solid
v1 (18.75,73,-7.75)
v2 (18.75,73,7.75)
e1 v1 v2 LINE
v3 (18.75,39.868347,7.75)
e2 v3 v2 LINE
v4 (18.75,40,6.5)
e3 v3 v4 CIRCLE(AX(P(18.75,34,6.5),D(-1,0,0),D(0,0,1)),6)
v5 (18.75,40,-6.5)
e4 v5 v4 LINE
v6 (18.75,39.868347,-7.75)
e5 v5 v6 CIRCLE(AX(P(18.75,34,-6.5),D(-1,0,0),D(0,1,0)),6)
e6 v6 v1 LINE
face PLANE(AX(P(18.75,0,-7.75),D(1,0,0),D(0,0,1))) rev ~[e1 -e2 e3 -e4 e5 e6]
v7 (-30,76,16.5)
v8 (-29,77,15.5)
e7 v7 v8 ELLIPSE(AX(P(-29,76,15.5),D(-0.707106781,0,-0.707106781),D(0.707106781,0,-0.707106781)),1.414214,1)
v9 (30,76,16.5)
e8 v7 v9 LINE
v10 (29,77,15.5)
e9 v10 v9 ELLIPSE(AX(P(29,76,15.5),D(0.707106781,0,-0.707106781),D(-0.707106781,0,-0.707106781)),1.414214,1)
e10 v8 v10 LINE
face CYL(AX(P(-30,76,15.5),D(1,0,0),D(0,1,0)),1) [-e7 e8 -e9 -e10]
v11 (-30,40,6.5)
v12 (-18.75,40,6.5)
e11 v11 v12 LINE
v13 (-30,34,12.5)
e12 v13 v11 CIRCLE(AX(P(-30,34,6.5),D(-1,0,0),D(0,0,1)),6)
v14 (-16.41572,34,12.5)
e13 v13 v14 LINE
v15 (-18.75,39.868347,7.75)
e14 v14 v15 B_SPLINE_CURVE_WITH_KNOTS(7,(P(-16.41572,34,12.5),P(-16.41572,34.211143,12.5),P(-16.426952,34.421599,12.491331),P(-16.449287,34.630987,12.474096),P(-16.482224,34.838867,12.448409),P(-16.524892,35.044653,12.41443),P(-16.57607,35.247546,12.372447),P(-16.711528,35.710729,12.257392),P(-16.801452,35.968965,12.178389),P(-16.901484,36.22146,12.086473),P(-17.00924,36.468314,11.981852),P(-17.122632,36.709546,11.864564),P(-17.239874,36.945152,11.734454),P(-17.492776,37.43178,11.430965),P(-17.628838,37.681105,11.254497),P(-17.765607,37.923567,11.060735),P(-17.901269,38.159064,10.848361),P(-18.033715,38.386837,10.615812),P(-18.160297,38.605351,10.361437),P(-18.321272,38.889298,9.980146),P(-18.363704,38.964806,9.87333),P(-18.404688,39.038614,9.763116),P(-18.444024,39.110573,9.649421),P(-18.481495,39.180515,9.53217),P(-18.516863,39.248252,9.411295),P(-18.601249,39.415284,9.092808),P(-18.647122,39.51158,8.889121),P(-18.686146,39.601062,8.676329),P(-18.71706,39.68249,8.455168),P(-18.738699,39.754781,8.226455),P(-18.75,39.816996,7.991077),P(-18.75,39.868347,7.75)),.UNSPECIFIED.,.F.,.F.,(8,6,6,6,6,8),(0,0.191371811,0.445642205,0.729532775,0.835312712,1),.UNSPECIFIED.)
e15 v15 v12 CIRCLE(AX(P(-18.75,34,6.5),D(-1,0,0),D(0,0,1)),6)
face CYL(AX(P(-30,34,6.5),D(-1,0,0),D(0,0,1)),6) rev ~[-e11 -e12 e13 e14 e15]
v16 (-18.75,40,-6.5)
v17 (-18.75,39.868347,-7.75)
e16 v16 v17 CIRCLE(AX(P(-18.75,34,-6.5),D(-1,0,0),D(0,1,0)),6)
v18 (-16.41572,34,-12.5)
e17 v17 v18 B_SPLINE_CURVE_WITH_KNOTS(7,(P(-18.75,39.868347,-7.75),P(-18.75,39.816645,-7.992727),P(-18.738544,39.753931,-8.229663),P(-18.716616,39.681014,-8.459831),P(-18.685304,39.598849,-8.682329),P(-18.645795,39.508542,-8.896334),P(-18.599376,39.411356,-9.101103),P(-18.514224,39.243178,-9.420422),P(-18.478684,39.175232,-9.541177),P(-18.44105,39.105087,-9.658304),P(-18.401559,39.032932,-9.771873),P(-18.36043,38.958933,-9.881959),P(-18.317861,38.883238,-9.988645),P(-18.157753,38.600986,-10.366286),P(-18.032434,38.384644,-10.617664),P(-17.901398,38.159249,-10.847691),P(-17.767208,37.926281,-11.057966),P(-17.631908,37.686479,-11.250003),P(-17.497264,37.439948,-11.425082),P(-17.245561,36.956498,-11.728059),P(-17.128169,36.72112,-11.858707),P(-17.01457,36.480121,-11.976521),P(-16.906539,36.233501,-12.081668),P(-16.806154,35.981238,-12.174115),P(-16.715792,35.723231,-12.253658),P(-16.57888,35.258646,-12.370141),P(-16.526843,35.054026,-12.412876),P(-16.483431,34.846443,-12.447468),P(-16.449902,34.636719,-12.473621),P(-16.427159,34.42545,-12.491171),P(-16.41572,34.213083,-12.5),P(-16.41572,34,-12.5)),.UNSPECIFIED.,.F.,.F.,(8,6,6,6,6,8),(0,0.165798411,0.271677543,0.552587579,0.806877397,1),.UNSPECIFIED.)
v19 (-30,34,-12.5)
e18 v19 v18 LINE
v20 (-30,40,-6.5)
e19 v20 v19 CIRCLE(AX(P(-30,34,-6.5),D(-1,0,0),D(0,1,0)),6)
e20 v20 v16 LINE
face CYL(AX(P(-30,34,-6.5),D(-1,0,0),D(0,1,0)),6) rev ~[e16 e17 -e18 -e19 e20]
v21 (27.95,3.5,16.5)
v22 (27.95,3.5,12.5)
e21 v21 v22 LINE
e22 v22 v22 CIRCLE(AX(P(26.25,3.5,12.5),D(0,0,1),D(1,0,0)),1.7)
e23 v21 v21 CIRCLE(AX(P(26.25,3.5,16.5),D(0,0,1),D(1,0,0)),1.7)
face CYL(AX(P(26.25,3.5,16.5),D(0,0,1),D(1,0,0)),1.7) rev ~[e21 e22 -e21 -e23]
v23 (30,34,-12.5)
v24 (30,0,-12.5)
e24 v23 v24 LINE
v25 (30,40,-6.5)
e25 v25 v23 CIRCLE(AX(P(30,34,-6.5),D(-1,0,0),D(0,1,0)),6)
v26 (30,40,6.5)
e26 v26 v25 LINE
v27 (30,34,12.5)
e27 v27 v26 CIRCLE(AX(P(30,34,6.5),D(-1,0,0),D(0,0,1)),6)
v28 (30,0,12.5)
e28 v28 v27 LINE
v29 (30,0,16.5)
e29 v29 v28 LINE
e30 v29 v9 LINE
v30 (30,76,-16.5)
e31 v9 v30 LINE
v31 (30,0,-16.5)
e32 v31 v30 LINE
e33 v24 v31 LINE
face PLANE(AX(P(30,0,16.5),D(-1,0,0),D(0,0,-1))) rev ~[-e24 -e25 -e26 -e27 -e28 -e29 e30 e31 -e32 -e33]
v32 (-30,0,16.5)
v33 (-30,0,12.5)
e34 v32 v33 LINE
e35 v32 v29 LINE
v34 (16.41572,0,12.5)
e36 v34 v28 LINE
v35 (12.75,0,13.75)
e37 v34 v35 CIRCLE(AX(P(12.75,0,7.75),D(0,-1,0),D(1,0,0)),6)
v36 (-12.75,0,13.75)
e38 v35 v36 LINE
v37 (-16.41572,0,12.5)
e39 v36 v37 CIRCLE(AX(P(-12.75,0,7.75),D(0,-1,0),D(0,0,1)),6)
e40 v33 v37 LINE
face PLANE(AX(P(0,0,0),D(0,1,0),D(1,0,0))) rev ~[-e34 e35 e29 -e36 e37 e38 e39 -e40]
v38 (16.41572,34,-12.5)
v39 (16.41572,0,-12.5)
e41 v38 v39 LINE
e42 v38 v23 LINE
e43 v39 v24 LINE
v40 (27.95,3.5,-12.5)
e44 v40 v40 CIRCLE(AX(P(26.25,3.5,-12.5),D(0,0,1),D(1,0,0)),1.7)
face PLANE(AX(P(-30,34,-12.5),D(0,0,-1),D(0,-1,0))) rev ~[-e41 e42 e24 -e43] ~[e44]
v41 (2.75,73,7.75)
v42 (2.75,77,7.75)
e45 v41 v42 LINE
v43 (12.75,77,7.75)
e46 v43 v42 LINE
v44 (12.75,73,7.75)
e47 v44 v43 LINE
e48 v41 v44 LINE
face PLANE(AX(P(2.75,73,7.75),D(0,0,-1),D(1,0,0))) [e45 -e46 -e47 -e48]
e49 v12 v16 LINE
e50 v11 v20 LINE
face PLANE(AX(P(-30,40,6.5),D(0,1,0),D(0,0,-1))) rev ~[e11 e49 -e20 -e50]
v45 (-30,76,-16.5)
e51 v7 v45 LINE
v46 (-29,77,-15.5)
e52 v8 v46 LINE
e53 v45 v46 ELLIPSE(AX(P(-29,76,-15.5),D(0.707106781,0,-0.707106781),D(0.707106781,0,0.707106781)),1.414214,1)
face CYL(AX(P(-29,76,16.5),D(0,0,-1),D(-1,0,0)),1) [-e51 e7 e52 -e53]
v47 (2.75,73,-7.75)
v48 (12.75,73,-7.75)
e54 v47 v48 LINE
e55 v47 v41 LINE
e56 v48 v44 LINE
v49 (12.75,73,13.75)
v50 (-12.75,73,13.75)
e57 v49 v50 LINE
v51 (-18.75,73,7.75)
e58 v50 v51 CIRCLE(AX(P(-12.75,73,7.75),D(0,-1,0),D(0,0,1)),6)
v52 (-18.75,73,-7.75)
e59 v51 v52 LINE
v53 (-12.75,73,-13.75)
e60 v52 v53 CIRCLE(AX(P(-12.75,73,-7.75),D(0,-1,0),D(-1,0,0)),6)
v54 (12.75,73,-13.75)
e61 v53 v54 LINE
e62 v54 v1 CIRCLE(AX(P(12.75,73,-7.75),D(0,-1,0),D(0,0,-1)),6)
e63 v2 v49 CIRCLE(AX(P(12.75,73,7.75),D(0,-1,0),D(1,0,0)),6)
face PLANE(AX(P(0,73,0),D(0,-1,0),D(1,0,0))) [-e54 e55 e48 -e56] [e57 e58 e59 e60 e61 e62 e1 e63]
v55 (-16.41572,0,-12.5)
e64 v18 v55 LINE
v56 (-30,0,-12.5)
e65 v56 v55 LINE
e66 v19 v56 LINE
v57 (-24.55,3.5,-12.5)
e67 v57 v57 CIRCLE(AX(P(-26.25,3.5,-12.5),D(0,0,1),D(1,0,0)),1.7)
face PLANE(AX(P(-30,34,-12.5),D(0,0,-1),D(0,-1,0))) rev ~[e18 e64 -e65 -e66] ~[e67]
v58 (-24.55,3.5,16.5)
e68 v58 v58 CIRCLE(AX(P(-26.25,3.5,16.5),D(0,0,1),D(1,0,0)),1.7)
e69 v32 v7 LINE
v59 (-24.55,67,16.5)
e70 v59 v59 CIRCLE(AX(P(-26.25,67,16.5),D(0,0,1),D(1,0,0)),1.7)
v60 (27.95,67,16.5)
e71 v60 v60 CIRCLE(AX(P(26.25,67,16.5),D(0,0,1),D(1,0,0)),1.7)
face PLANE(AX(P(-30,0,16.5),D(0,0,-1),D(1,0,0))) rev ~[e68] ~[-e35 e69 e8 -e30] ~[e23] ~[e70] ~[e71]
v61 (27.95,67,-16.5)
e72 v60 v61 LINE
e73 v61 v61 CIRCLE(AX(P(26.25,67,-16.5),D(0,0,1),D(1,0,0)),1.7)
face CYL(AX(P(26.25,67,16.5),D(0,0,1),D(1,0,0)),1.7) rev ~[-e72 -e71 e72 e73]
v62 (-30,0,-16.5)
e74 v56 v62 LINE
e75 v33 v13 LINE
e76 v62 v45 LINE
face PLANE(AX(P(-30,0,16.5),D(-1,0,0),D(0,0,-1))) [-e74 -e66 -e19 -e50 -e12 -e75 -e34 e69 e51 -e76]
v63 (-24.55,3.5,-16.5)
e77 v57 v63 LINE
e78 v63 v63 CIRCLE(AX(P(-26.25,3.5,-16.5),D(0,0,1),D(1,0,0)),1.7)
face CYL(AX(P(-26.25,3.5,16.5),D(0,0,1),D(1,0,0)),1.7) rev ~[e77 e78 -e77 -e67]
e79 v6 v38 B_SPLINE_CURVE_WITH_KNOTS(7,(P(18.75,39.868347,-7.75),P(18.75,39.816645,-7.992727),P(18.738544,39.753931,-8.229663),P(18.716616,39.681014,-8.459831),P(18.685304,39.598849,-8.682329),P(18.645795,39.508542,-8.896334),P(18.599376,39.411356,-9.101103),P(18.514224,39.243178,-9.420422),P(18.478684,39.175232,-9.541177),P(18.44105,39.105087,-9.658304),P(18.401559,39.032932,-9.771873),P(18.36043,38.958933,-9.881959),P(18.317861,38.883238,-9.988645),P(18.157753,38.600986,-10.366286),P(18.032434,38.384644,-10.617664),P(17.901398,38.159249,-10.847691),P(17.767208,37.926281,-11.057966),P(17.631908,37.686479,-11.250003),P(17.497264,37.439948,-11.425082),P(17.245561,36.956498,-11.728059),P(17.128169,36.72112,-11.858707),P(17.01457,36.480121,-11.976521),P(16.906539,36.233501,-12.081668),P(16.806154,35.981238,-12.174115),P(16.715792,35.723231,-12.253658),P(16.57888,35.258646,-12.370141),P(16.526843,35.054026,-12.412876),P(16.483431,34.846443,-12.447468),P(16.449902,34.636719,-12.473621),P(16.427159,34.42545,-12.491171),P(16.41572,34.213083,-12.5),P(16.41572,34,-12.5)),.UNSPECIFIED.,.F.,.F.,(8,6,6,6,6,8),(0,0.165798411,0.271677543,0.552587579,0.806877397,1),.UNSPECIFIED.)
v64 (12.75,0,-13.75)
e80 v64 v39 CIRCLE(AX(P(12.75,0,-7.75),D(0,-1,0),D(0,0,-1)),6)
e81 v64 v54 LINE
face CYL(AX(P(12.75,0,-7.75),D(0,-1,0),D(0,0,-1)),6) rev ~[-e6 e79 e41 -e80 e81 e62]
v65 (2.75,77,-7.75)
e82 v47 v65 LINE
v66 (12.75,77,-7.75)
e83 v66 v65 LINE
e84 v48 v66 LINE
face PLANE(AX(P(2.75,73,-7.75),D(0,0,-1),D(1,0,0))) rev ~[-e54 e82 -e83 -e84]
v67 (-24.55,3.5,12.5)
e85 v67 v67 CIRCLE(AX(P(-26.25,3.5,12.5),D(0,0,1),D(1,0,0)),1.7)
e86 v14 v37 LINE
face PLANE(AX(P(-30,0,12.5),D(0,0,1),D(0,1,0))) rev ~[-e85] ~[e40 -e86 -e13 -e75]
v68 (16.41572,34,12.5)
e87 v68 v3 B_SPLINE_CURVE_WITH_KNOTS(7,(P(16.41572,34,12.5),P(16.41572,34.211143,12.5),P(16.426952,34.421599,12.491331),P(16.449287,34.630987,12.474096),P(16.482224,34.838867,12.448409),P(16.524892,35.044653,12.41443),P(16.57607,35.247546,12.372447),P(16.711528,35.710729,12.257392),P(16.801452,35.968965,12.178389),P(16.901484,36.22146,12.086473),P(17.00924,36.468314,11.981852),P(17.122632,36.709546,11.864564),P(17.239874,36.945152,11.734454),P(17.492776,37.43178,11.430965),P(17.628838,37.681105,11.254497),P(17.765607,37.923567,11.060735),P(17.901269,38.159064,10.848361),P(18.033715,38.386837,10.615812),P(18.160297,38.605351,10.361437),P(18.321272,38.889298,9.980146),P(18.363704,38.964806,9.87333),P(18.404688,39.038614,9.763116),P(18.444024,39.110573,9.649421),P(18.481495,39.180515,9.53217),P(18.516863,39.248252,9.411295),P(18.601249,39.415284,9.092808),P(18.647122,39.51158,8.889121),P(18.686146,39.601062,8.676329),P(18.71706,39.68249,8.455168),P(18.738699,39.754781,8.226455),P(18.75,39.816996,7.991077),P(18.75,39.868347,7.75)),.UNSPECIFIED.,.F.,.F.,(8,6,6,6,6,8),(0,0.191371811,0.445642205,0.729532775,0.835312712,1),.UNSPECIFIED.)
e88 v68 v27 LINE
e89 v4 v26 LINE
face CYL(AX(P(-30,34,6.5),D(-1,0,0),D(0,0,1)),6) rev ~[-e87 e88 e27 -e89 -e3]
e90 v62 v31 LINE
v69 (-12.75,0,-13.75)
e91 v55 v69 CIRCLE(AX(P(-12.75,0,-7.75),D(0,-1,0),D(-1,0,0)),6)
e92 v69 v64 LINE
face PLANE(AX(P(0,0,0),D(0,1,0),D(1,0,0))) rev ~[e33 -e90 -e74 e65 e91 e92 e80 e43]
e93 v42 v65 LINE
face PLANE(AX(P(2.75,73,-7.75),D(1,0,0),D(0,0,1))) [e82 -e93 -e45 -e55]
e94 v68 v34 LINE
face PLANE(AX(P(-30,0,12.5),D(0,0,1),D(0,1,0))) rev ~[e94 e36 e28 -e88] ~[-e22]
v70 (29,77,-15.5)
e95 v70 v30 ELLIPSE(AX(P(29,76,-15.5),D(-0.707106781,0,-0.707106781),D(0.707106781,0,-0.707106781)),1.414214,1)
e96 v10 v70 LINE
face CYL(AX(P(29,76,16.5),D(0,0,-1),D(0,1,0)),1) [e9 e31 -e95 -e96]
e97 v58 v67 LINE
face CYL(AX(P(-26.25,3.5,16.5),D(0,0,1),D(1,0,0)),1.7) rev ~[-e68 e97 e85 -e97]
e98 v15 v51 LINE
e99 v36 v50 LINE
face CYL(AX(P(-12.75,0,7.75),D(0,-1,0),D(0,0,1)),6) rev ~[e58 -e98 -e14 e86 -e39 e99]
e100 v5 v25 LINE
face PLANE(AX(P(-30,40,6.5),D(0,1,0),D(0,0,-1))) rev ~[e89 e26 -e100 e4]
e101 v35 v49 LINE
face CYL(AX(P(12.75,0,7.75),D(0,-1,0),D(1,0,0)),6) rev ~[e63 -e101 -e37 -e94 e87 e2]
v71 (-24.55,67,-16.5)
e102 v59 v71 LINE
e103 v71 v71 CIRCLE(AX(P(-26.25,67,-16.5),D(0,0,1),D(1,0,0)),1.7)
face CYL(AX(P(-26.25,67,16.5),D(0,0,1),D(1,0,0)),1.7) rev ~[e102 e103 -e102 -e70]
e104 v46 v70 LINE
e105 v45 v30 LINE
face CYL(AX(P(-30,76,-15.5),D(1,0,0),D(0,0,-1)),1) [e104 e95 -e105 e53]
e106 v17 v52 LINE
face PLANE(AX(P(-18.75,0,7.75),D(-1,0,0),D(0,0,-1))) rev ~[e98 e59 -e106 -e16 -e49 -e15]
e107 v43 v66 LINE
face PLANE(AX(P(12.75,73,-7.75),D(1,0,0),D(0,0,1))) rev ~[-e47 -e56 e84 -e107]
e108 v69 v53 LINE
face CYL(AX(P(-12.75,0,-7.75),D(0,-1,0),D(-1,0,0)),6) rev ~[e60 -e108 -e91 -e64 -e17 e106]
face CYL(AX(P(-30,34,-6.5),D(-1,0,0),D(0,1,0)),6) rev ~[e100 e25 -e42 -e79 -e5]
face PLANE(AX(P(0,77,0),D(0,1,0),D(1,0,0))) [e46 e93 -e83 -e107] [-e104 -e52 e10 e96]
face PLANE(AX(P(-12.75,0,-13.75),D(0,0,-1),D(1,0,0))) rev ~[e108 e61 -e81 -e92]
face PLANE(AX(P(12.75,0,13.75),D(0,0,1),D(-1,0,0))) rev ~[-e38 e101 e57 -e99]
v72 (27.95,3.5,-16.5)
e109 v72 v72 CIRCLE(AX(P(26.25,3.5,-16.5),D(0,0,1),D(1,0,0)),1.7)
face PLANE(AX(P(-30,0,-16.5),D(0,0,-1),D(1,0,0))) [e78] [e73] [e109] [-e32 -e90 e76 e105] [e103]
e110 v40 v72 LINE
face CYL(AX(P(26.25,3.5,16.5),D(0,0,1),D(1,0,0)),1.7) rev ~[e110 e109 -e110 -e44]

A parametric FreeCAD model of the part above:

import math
import FreeCAD as App
import Part
import Sketcher
Q = App.Units.Quantity


def edges_at(feature, points):
    """Names of the edges that pass closest to the given points."""
    edges = feature.Shape.Edges
    near = lambda p: min(range(len(edges)), key=lambda i: edges[i].distToShape(Part.Vertex(*p))[0])
    return sorted({f"Edge{near(p) + 1}" for p in points})

doc = App.newDocument("Part")
params = doc.addObject("Spreadsheet::Sheet", "Params")
for row, (alias, value) in enumerate([
    ("sketch1_width", "60 mm"),
    ("sketch1_height", "33 mm"),
    ("pad1_length", "77 mm"),
    ("sketch2_radius", "6 mm"),
    ("sketch2_width", "25.5 mm"),
    ("sketch2_height", "15.5 mm"),
    ("pocket1_length", "73 mm"),
    ("sketch3_diameter", "3.4 mm"),
    ("sketch4_radius", "6 mm"),
    ("sketch4_width", "34 mm"),
    ("sketch4_height", "13 mm"),
    ("sketch5_width", "10 mm"),
    ("sketch5_height", "15.5 mm"),
    ("fillet_radius", "1 mm"),
], start=1):
    params.set(f"A{row}", alias)
    params.set(f"B{row}", "=" + value)
    params.setAlias(f"B{row}", alias)

body = doc.addObject("PartDesign::Body", "Body")

# Sketch on XZ plane
sketch1 = body.newObject("Sketcher::SketchObject", "Sketch")
sketch1.AttachmentSupport = (doc.getObject("XZ_Plane"), [""])
sketch1.MapMode = "FlatFace"
sketch1.addGeometry([
    Part.LineSegment(App.Vector(-30, -16, 0), App.Vector(-30, 16, 0)),
    Part.LineSegment(App.Vector(-30, 16, 0), App.Vector(30, 16, 0)),
    Part.LineSegment(App.Vector(30, 16, 0), App.Vector(30, -16, 0)),
    Part.LineSegment(App.Vector(30, -16, 0), App.Vector(-30, -16, 0)),
], False)
sketch1.addConstraint([
    Sketcher.Constraint("Coincident", 0, 2, 1, 1),
    Sketcher.Constraint("Coincident", 1, 2, 2, 1),
    Sketcher.Constraint("Coincident", 2, 2, 3, 1),
    Sketcher.Constraint("Coincident", 3, 2, 0, 1),
    Sketcher.Constraint("Vertical", 0),
    Sketcher.Constraint("Horizontal", 1),
    Sketcher.Constraint("Vertical", 2),
    Sketcher.Constraint("Horizontal", 3),
    Sketcher.Constraint("Symmetric", 0, 2, 2, 2, -1, 1),
    Sketcher.Constraint("DistanceX", 1, 1, 1, 2, Q("60 mm")),
    Sketcher.Constraint("DistanceY", 0, 1, 0, 2, Q("33 mm")),
])
sketch1.setExpression("Constraints[9]", "Params.sketch1_width")
sketch1.setExpression("Constraints[10]", "Params.sketch1_height")
pad1 = body.newObject("PartDesign::Pad", "Pad")
pad1.Profile = sketch1
pad1.setExpression("Length", "Params.pad1_length")
pad1.Reversed = True

# Sketch on XZ plane
sketch2 = body.newObject("Sketcher::SketchObject", "Sketch001")
sketch2.AttachmentSupport = (doc.getObject("XZ_Plane"), [""])
sketch2.MapMode = "FlatFace"
sketch2.addGeometry([
    Part.LineSegment(App.Vector(13, 14, 0), App.Vector(-13, 14, 0)),  # 0
    Part.ArcOfCircle(Part.Circle(App.Vector(-13, 8, 0), App.Vector(0, 0, 1), 6), math.radians(90), math.radians(180)),  # 1
    Part.LineSegment(App.Vector(-19, 8, 0), App.Vector(-19, -8, 0)),  # 2
    Part.ArcOfCircle(Part.Circle(App.Vector(-13, -8, 0), App.Vector(0, 0, 1), 6), math.radians(180), math.radians(270)),  # 3
    Part.LineSegment(App.Vector(-13, -14, 0), App.Vector(13, -14, 0)),  # 4
    Part.ArcOfCircle(Part.Circle(App.Vector(13, -8, 0), App.Vector(0, 0, 1), 6), math.radians(-90), math.radians(0)),  # 5
    Part.LineSegment(App.Vector(19, -8, 0), App.Vector(19, 8, 0)),  # 6
    Part.ArcOfCircle(Part.Circle(App.Vector(13, 8, 0), App.Vector(0, 0, 1), 6), math.radians(0), math.radians(90)),  # 7
], False)
sketch2.addConstraint([
    Sketcher.Constraint("Tangent", 0, 2, 1, 1),
    Sketcher.Constraint("Tangent", 1, 2, 2, 1),
    Sketcher.Constraint("Tangent", 2, 2, 3, 1),
    Sketcher.Constraint("Tangent", 3, 2, 4, 1),
    Sketcher.Constraint("Tangent", 4, 2, 5, 1),
    Sketcher.Constraint("Tangent", 5, 2, 6, 1),
    Sketcher.Constraint("Tangent", 6, 2, 7, 1),
    Sketcher.Constraint("Tangent", 7, 2, 0, 1),
    Sketcher.Constraint("Horizontal", 0),
    Sketcher.Constraint("Vertical", 2),
    Sketcher.Constraint("Horizontal", 4),
    Sketcher.Constraint("Vertical", 6),
    Sketcher.Constraint("Equal", 1, 3),
    Sketcher.Constraint("Equal", 3, 5),
    Sketcher.Constraint("Equal", 5, 7),
    Sketcher.Constraint("Symmetric", 1, 3, 5, 3, -1, 1),
    Sketcher.Constraint("Radius", 1, Q("6 mm")),
    Sketcher.Constraint("DistanceX", 0, 2, 0, 1, Q("25.5 mm")),
    Sketcher.Constraint("DistanceY", 2, 2, 2, 1, Q("15.5 mm")),
])
sketch2.setExpression("Constraints[16]", "Params.sketch2_radius")
sketch2.setExpression("Constraints[17]", "Params.sketch2_width")
sketch2.setExpression("Constraints[18]", "Params.sketch2_height")
pocket1 = body.newObject("PartDesign::Pocket", "Pocket")
pocket1.Profile = sketch2
pocket1.setExpression("Length", "Params.pocket1_length")

# Sketch on XY plane
sketch3 = body.newObject("Sketcher::SketchObject", "Sketch002")
sketch3.AttachmentSupport = (doc.getObject("XY_Plane"), [""])
sketch3.MapMode = "FlatFace"
sketch3.AttachmentOffset = App.Placement(App.Vector(0, 0, 16.5), App.Rotation())
sketch3.addGeometry([
    Part.Circle(App.Vector(26.2, 3.5, 0), App.Vector(0, 0, 1), 1.7),
    Part.Circle(App.Vector(26.2, 67, 0), App.Vector(0, 0, 1), 1.7),
    Part.Circle(App.Vector(-26.2, 67, 0), App.Vector(0, 0, 1), 1.7),
    Part.Circle(App.Vector(-26.2, 3.5, 0), App.Vector(0, 0, 1), 1.7),
], False)
sketch3.addConstraint([
    Sketcher.Constraint("Equal", 0, 1),
    Sketcher.Constraint("Equal", 1, 2),
    Sketcher.Constraint("Equal", 2, 3),
    Sketcher.Constraint("Symmetric", 1, 3, 2, 3, -2),
    Sketcher.Constraint("Symmetric", 0, 3, 3, 3, -2),
    Sketcher.Constraint("Vertical", 0, 3, 1, 3),
    Sketcher.Constraint("Diameter", 0, Q("3.4 mm")),
    Sketcher.Constraint("DistanceY", -1, 1, 1, 3, Q("67 mm")),
    Sketcher.Constraint("DistanceY", -1, 1, 0, 3, Q("3.5 mm")),
    Sketcher.Constraint("DistanceX", 2, 3, 1, 3, Q("52.5 mm")),
])
sketch3.setExpression("Constraints[6]", "Params.sketch3_diameter")
pocket2 = body.newObject("PartDesign::Pocket", "Pocket001")
pocket2.Profile = sketch3
pocket2.Type = "ThroughAll"

# Sketch on YZ plane
sketch4 = body.newObject("Sketcher::SketchObject", "Sketch003")
sketch4.AttachmentSupport = (doc.getObject("YZ_Plane"), [""])
sketch4.MapMode = "FlatFace"
sketch4.AttachmentOffset = App.Placement(App.Vector(0, 0, -30), App.Rotation())
sketch4.addGeometry([
    Part.LineSegment(App.Vector(40, 6, 0), App.Vector(40, -6, 0)),  # 0
    Part.ArcOfCircle(Part.Circle(App.Vector(34, -6, 0), App.Vector(0, 0, 1), 6), math.radians(-90), math.radians(0)),  # 1
    Part.LineSegment(App.Vector(34, -12, 0), App.Vector(0, -12, 0)),  # 2
    Part.LineSegment(App.Vector(0, -12, 0), App.Vector(0, 12, 0)),  # 3
    Part.LineSegment(App.Vector(0, 12, 0), App.Vector(34, 12, 0)),  # 4
    Part.ArcOfCircle(Part.Circle(App.Vector(34, 6, 0), App.Vector(0, 0, 1), 6), math.radians(0), math.radians(90)),  # 5
], False)
sketch4.addConstraint([
    Sketcher.Constraint("Tangent", 0, 2, 1, 2),
    Sketcher.Constraint("Tangent", 1, 1, 2, 1),
    Sketcher.Constraint("Coincident", 2, 2, 3, 1),
    Sketcher.Constraint("Coincident", 3, 2, 4, 1),
    Sketcher.Constraint("Tangent", 4, 2, 5, 2),
    Sketcher.Constraint("Tangent", 5, 1, 0, 1),
    Sketcher.Constraint("Vertical", 0),
    Sketcher.Constraint("Horizontal", 2),
    Sketcher.Constraint("Vertical", 3),
    Sketcher.Constraint("Horizontal", 4),
    Sketcher.Constraint("Equal", 1, 5),
    Sketcher.Constraint("Symmetric", 2, 2, 3, 2, -1, 1),
    Sketcher.Constraint("Radius", 1, Q("6 mm")),
    Sketcher.Constraint("DistanceX", 2, 2, 2, 1, Q("34 mm")),
    Sketcher.Constraint("DistanceY", 0, 2, 0, 1, Q("13 mm")),
])
sketch4.setExpression("Constraints[12]", "Params.sketch4_radius")
sketch4.setExpression("Constraints[13]", "Params.sketch4_width")
sketch4.setExpression("Constraints[14]", "Params.sketch4_height")
pocket3 = body.newObject("PartDesign::Pocket", "Pocket002")
pocket3.Profile = sketch4
pocket3.Type = "ThroughAll"
pocket3.Reversed = True

# Sketch on XZ plane
sketch5 = body.newObject("Sketcher::SketchObject", "Sketch004")
sketch5.AttachmentSupport = (doc.getObject("XZ_Plane"), [""])
sketch5.MapMode = "FlatFace"
sketch5.AttachmentOffset = App.Placement(App.Vector(0, 0, -73), App.Rotation())
sketch5.addGeometry([
    Part.LineSegment(App.Vector(3, 8, 0), App.Vector(3, -8, 0)),
    Part.LineSegment(App.Vector(3, -8, 0), App.Vector(13, -8, 0)),
    Part.LineSegment(App.Vector(13, -8, 0), App.Vector(13, 8, 0)),
    Part.LineSegment(App.Vector(13, 8, 0), App.Vector(3, 8, 0)),
], False)
sketch5.addConstraint([
    Sketcher.Constraint("Coincident", 0, 2, 1, 1),
    Sketcher.Constraint("Coincident", 1, 2, 2, 1),
    Sketcher.Constraint("Coincident", 2, 2, 3, 1),
    Sketcher.Constraint("Coincident", 3, 2, 0, 1),
    Sketcher.Constraint("Vertical", 0),
    Sketcher.Constraint("Horizontal", 1),
    Sketcher.Constraint("Vertical", 2),
    Sketcher.Constraint("Horizontal", 3),
    Sketcher.Constraint("DistanceX", 1, 1, 1, 2, Q("10 mm")),
    Sketcher.Constraint("DistanceY", 0, 2, 0, 1, Q("15.5 mm")),
    Sketcher.Constraint("DistanceX", -1, 1, 0, 2, Q("2.75 mm")),
    Sketcher.Constraint("DistanceY", 0, 2, -1, 1, Q("7.75 mm")),
])
sketch5.setExpression("Constraints[8]", "Params.sketch5_width")
sketch5.setExpression("Constraints[9]", "Params.sketch5_height")
pocket4 = body.newObject("PartDesign::Pocket", "Pocket003")
pocket4.Profile = sketch5
pocket4.Type = "ThroughAll"
doc.recompute()

fillet = body.newObject("PartDesign::Fillet", "Fillet")
fillet.Base = (pocket4, edges_at(pocket4, [
    (30, 77, 0),
    (0, 77, -16.5),
    (-30, 77, 0),
    (0, 77, 16.5),
]))
fillet.setExpression("Radius", "Params.fillet_radius")

doc.recompute()
